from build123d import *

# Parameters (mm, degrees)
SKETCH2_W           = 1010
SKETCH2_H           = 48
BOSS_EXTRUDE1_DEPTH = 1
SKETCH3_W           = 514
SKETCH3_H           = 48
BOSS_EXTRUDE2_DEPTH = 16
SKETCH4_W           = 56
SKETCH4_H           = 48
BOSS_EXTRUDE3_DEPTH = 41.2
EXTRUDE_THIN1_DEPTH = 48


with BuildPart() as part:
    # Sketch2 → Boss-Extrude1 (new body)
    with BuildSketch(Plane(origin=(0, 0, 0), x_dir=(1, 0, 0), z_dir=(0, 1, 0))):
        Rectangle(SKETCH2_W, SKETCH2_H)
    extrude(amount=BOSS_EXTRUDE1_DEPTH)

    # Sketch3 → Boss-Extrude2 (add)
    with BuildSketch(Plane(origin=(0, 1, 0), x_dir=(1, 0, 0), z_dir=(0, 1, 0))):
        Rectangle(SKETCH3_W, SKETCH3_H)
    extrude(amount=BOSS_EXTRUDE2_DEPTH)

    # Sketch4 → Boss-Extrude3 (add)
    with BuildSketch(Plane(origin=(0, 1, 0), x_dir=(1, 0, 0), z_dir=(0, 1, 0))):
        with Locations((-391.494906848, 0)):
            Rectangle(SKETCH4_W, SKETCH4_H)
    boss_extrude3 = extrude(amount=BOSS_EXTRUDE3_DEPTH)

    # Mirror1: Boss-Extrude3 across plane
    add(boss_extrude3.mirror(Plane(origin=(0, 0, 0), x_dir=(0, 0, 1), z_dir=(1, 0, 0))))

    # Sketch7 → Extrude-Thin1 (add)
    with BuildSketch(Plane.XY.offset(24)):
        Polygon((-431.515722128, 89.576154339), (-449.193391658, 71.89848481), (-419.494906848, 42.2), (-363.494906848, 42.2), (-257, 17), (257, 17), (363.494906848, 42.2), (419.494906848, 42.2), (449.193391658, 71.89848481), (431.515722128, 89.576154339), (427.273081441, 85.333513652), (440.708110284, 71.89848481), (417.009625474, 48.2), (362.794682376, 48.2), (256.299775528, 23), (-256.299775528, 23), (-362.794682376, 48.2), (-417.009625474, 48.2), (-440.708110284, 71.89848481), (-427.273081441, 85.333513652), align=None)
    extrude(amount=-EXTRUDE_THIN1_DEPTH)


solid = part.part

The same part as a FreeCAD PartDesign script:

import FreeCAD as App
import Part
import Sketcher
Q = App.Units.Quantity

doc = App.newDocument("Part")
body = doc.addObject("PartDesign::Body", "Body")

# Sketch on XZ plane
sketch1 = doc.addObject("Sketcher::SketchObject", "Sketch")
body.addObject(sketch1)
sketch1.AttachmentSupport = (doc.XZ_Plane, [""])
sketch1.MapMode = "FlatFace"
sketch1.addGeometry(Part.LineSegment(App.Vector(-505, -24, 0), App.Vector(-505, 24, 0)), False)
sketch1.addGeometry(Part.LineSegment(App.Vector(-505, 24, 0), App.Vector(505, 24, 0)), False)
sketch1.addGeometry(Part.LineSegment(App.Vector(505, 24, 0), App.Vector(505, -24, 0)), False)
sketch1.addGeometry(Part.LineSegment(App.Vector(505, -24, 0), App.Vector(-505, -24, 0)), False)
sketch1.addConstraint(Sketcher.Constraint("Coincident", 0, 2, 1, 1))
sketch1.addConstraint(Sketcher.Constraint("Coincident", 1, 2, 2, 1))
sketch1.addConstraint(Sketcher.Constraint("Coincident", 2, 2, 3, 1))
sketch1.addConstraint(Sketcher.Constraint("Coincident", 3, 2, 0, 1))
sketch1.addConstraint(Sketcher.Constraint("Vertical", 0))
sketch1.addConstraint(Sketcher.Constraint("Horizontal", 1))
sketch1.addConstraint(Sketcher.Constraint("Vertical", 2))
sketch1.addConstraint(Sketcher.Constraint("Horizontal", 3))
sketch1.addConstraint(Sketcher.Constraint("Symmetric", 0, 2, 2, 2, -1, 1))
sketch1.addConstraint(Sketcher.Constraint("DistanceX", 1, 1, 1, 2, Q("1010 mm")))
sketch1.addConstraint(Sketcher.Constraint("DistanceY", 0, 1, 0, 2, Q("48 mm")))
pad1 = doc.addObject("PartDesign::Pad", "Pad")
body.addObject(pad1)
pad1.Profile = sketch1
pad1.Length = 1
pad1.Reversed = True

# Sketch on XZ plane
sketch2 = doc.addObject("Sketcher::SketchObject", "Sketch001")
body.addObject(sketch2)
sketch2.AttachmentSupport = (doc.XZ_Plane, [""])
sketch2.MapMode = "FlatFace"
sketch2.AttachmentOffset = App.Placement(App.Vector(0, 0, -1), App.Rotation())
sketch2.addGeometry(Part.LineSegment(App.Vector(-257, -24, 0), App.Vector(-257, 24, 0)), False)
sketch2.addGeometry(Part.LineSegment(App.Vector(-257, 24, 0), App.Vector(257, 24, 0)), False)
sketch2.addGeometry(Part.LineSegment(App.Vector(257, 24, 0), App.Vector(257, -24, 0)), False)
sketch2.addGeometry(Part.LineSegment(App.Vector(257, -24, 0), App.Vector(-257, -24, 0)), False)
sketch2.addConstraint(Sketcher.Constraint("Coincident", 0, 2, 1, 1))
sketch2.addConstraint(Sketcher.Constraint("Coincident", 1, 2, 2, 1))
sketch2.addConstraint(Sketcher.Constraint("Coincident", 2, 2, 3, 1))
sketch2.addConstraint(Sketcher.Constraint("Coincident", 3, 2, 0, 1))
sketch2.addConstraint(Sketcher.Constraint("Vertical", 0))
sketch2.addConstraint(Sketcher.Constraint("Horizontal", 1))
sketch2.addConstraint(Sketcher.Constraint("Vertical", 2))
sketch2.addConstraint(Sketcher.Constraint("Horizontal", 3))
sketch2.addConstraint(Sketcher.Constraint("Symmetric", 0, 2, 2, 2, -1, 1))
sketch2.addConstraint(Sketcher.Constraint("DistanceX", 1, 1, 1, 2, Q("514 mm")))
sketch2.addConstraint(Sketcher.Constraint("DistanceY", 0, 1, 0, 2, Q("48 mm")))
pad2 = doc.addObject("PartDesign::Pad", "Pad001")
body.addObject(pad2)
pad2.Profile = sketch2
pad2.Length = 16
pad2.Reversed = True

# Sketch on XZ plane
sketch3 = doc.addObject("Sketcher::SketchObject", "Sketch002")
body.addObject(sketch3)
sketch3.AttachmentSupport = (doc.XZ_Plane, [""])
sketch3.MapMode = "FlatFace"
sketch3.AttachmentOffset = App.Placement(App.Vector(0, 0, -1), App.Rotation())
sketch3.addGeometry(Part.LineSegment(App.Vector(-419, -24, 0), App.Vector(-419, 24, 0)), False)
sketch3.addGeometry(Part.LineSegment(App.Vector(-419, 24, 0), App.Vector(-363, 24, 0)), False)
sketch3.addGeometry(Part.LineSegment(App.Vector(-363, 24, 0), App.Vector(-363, -24, 0)), False)
sketch3.addGeometry(Part.LineSegment(App.Vector(-363, -24, 0), App.Vector(-419, -24, 0)), False)
sketch3.addConstraint(Sketcher.Constraint("Coincident", 0, 2, 1, 1))
sketch3.addConstraint(Sketcher.Constraint("Coincident", 1, 2, 2, 1))
sketch3.addConstraint(Sketcher.Constraint("Coincident", 2, 2, 3, 1))
sketch3.addConstraint(Sketcher.Constraint("Coincident", 3, 2, 0, 1))
sketch3.addConstraint(Sketcher.Constraint("Vertical", 0))
sketch3.addConstraint(Sketcher.Constraint("Horizontal", 1))
sketch3.addConstraint(Sketcher.Constraint("Vertical", 2))
sketch3.addConstraint(Sketcher.Constraint("Horizontal", 3))
sketch3.addConstraint(Sketcher.Constraint("DistanceX", 1, 1, 1, 2, Q("56 mm")))
sketch3.addConstraint(Sketcher.Constraint("DistanceY", 0, 1, 0, 2, Q("48 mm")))
sketch3.addConstraint(Sketcher.Constraint("DistanceY", -1, 1, 0, 2, Q("24 mm")))
sketch3.addConstraint(Sketcher.Constraint("DistanceX", 0, 2, -1, 1, Q("419.494907 mm")))
pad3 = doc.addObject("PartDesign::Pad", "Pad002")
body.addObject(pad3)
pad3.Profile = sketch3
pad3.Length = 41.2
pad3.Reversed = True
doc.recompute()

mirrored = doc.addObject("PartDesign::Mirrored", "Mirrored")
body.addObject(mirrored)
mirrored.Originals = [pad3]
mirrored.MirrorPlane = (doc.YZ_Plane, [""])
body.Tip = mirrored

# Sketch on XY plane
sketch4 = doc.addObject("Sketcher::SketchObject", "Sketch003")
body.addObject(sketch4)
sketch4.AttachmentSupport = (doc.XY_Plane, [""])
sketch4.MapMode = "FlatFace"
sketch4.AttachmentOffset = App.Placement(App.Vector(0, 0, 24), App.Rotation())
sketch4.addGeometry(Part.LineSegment(App.Vector(-432, 90, 0), App.Vector(-449, 72, 0)), False)
sketch4.addGeometry(Part.LineSegment(App.Vector(-449, 72, 0), App.Vector(-419, 42, 0)), False)
sketch4.addGeometry(Part.LineSegment(App.Vector(-419, 42, 0), App.Vector(-363, 42, 0)), False)
sketch4.addGeometry(Part.LineSegment(App.Vector(-363, 42, 0), App.Vector(-257, 17, 0)), False)
sketch4.addGeometry(Part.LineSegment(App.Vector(-257, 17, 0), App.Vector(257, 17, 0)), False)
sketch4.addGeometry(Part.LineSegment(App.Vector(257, 17, 0), App.Vector(363, 42, 0)), False)
sketch4.addGeometry(Part.LineSegment(App.Vector(363, 42, 0), App.Vector(419, 42, 0)), False)
sketch4.addGeometry(Part.LineSegment(App.Vector(419, 42, 0), App.Vector(449, 72, 0)), False)
sketch4.addGeometry(Part.LineSegment(App.Vector(449, 72, 0), App.Vector(432, 90, 0)), False)
sketch4.addGeometry(Part.LineSegment(App.Vector(432, 90, 0), App.Vector(427, 85, 0)), False)
sketch4.addGeometry(Part.LineSegment(App.Vector(427, 85, 0), App.Vector(441, 72, 0)), False)
sketch4.addGeometry(Part.LineSegment(App.Vector(441, 72, 0), App.Vector(417, 48, 0)), False)
sketch4.addGeometry(Part.LineSegment(App.Vector(417, 48, 0), App.Vector(363, 48, 0)), False)
sketch4.addGeometry(Part.LineSegment(App.Vector(363, 48, 0), App.Vector(256, 23, 0)), False)
sketch4.addGeometry(Part.LineSegment(App.Vector(256, 23, 0), App.Vector(-256, 23, 0)), False)
sketch4.addGeometry(Part.LineSegment(App.Vector(-256, 23, 0), App.Vector(-363, 48, 0)), False)
sketch4.addGeometry(Part.LineSegment(App.Vector(-363, 48, 0), App.Vector(-417, 48, 0)), False)
sketch4.addGeometry(Part.LineSegment(App.Vector(-417, 48, 0), App.Vector(-441, 72, 0)), False)
sketch4.addGeometry(Part.LineSegment(App.Vector(-441, 72, 0), App.Vector(-427, 85, 0)), False)
sketch4.addGeometry(Part.LineSegment(App.Vector(-427, 85, 0), App.Vector(-432, 90, 0)), False)
sketch4.addConstraint(Sketcher.Constraint("Coincident", 0, 2, 1, 1))
sketch4.addConstraint(Sketcher.Constraint("Coincident", 1, 2, 2, 1))
sketch4.addConstraint(Sketcher.Constraint("Coincident", 2, 2, 3, 1))
sketch4.addConstraint(Sketcher.Constraint("Coincident", 3, 2, 4, 1))
sketch4.addConstraint(Sketcher.Constraint("Coincident", 4, 2, 5, 1))
sketch4.addConstraint(Sketcher.Constraint("Coincident", 5, 2, 6, 1))
sketch4.addConstraint(Sketcher.Constraint("Coincident", 6, 2, 7, 1))
sketch4.addConstraint(Sketcher.Constraint("Coincident", 7, 2, 8, 1))
sketch4.addConstraint(Sketcher.Constraint("Coincident", 8, 2, 9, 1))
sketch4.addConstraint(Sketcher.Constraint("Coincident", 9, 2, 10, 1))
sketch4.addConstraint(Sketcher.Constraint("Coincident", 10, 2, 11, 1))
sketch4.addConstraint(Sketcher.Constraint("Coincident", 11, 2, 12, 1))
sketch4.addConstraint(Sketcher.Constraint("Coincident", 12, 2, 13, 1))
sketch4.addConstraint(Sketcher.Constraint("Coincident", 13, 2, 14, 1))
sketch4.addConstraint(Sketcher.Constraint("Coincident", 14, 2, 15, 1))
sketch4.addConstraint(Sketcher.Constraint("Coincident", 15, 2, 16, 1))
sketch4.addConstraint(Sketcher.Constraint("Coincident", 16, 2, 17, 1))
sketch4.addConstraint(Sketcher.Constraint("Coincident", 17, 2, 18, 1))
sketch4.addConstraint(Sketcher.Constraint("Coincident", 18, 2, 19, 1))
sketch4.addConstraint(Sketcher.Constraint("Coincident", 19, 2, 0, 1))
sketch4.addConstraint(Sketcher.Constraint("Horizontal", 2))
sketch4.addConstraint(Sketcher.Constraint("Horizontal", 4))
sketch4.addConstraint(Sketcher.Constraint("Horizontal", 6))
sketch4.addConstraint(Sketcher.Constraint("Horizontal", 12))
sketch4.addConstraint(Sketcher.Constraint("Horizontal", 14))
sketch4.addConstraint(Sketcher.Constraint("Horizontal", 16))
sketch4.addConstraint(Sketcher.Constraint("Symmetric", 2, 2, 5, 2, -2))
sketch4.addConstraint(Sketcher.Constraint("Symmetric", 0, 2, 7, 2, -2))
sketch4.addConstraint(Sketcher.Constraint("Symmetric", 12, 2, 15, 2, -2))
sketch4.addConstraint(Sketcher.Constraint("Symmetric", 10, 2, 17, 2, -2))
sketch4.addConstraint(Sketcher.Constraint("Symmetric", 9, 2, 18, 2, -2))
sketch4.addConstraint(Sketcher.Constraint("Symmetric", 8, 2, 19, 2, -2))
sketch4.addConstraint(Sketcher.Constraint("Perpendicular", 0, 1))
sketch4.addConstraint(Sketcher.Constraint("Perpendicular", 1, 7))
sketch4.addConstraint(Sketcher.Constraint("Perpendicular", 7, 8))
sketch4.addConstraint(Sketcher.Constraint("Perpendicular", 8, 9))
sketch4.addConstraint(Sketcher.Constraint("Perpendicular", 9, 10))
sketch4.addConstraint(Sketcher.Constraint("Perpendicular", 10, 11))
sketch4.addConstraint(Sketcher.Constraint("Parallel", 5, 13))
sketch4.addConstraint(Sketcher.Constraint("Parallel", 3, 15))
sketch4.addConstraint(Sketcher.Constraint("Perpendicular", 11, 17))
sketch4.addConstraint(Sketcher.Constraint("Horizontal", 7, 2, 10, 2))
sketch4.addConstraint(Sketcher.Constraint("Equal", 3, 5))
sketch4.addConstraint(Sketcher.Constraint("Equal", 5, 13))
sketch4.addConstraint(Sketcher.Constraint("DistanceX", 2, 1, 2, 2, Q("56 mm")))
sketch4.addConstraint(Sketcher.Constraint("DistanceX", 4, 1, 4, 2, Q("514 mm")))
sketch4.addConstraint(Sketcher.Constraint("Distance", 0, Q("25 mm")))
sketch4.addConstraint(Sketcher.Constraint("Distance", 1, Q("42 mm")))
sketch4.addConstraint(Sketcher.Constraint("Distance", 9, Q("6 mm")))
sketch4.addConstraint(Sketcher.Constraint("DistanceY", -1, 1, 3, 2, Q("17 mm")))
sketch4.addConstraint(Sketcher.Constraint("DistanceY", -1, 1, 13, 2, Q("23 mm")))
sketch4.addConstraint(Sketcher.Constraint("DistanceY", -1, 1, 1, 2, Q("42.2 mm")))
sketch4.addConstraint(Sketcher.Constraint("DistanceX", 14, 2, 14, 1, Q("512.599551 mm")))
sketch4.addConstraint(Sketcher.Constraint("DistanceX", 0, 2, 5, 2, Q("812.688299 mm")))
pad4 = doc.addObject("PartDesign::Pad", "Pad003")
body.addObject(pad4)
pad4.Profile = sketch4
pad4.Length = 48
pad4.Reversed = True

doc.recompute()
